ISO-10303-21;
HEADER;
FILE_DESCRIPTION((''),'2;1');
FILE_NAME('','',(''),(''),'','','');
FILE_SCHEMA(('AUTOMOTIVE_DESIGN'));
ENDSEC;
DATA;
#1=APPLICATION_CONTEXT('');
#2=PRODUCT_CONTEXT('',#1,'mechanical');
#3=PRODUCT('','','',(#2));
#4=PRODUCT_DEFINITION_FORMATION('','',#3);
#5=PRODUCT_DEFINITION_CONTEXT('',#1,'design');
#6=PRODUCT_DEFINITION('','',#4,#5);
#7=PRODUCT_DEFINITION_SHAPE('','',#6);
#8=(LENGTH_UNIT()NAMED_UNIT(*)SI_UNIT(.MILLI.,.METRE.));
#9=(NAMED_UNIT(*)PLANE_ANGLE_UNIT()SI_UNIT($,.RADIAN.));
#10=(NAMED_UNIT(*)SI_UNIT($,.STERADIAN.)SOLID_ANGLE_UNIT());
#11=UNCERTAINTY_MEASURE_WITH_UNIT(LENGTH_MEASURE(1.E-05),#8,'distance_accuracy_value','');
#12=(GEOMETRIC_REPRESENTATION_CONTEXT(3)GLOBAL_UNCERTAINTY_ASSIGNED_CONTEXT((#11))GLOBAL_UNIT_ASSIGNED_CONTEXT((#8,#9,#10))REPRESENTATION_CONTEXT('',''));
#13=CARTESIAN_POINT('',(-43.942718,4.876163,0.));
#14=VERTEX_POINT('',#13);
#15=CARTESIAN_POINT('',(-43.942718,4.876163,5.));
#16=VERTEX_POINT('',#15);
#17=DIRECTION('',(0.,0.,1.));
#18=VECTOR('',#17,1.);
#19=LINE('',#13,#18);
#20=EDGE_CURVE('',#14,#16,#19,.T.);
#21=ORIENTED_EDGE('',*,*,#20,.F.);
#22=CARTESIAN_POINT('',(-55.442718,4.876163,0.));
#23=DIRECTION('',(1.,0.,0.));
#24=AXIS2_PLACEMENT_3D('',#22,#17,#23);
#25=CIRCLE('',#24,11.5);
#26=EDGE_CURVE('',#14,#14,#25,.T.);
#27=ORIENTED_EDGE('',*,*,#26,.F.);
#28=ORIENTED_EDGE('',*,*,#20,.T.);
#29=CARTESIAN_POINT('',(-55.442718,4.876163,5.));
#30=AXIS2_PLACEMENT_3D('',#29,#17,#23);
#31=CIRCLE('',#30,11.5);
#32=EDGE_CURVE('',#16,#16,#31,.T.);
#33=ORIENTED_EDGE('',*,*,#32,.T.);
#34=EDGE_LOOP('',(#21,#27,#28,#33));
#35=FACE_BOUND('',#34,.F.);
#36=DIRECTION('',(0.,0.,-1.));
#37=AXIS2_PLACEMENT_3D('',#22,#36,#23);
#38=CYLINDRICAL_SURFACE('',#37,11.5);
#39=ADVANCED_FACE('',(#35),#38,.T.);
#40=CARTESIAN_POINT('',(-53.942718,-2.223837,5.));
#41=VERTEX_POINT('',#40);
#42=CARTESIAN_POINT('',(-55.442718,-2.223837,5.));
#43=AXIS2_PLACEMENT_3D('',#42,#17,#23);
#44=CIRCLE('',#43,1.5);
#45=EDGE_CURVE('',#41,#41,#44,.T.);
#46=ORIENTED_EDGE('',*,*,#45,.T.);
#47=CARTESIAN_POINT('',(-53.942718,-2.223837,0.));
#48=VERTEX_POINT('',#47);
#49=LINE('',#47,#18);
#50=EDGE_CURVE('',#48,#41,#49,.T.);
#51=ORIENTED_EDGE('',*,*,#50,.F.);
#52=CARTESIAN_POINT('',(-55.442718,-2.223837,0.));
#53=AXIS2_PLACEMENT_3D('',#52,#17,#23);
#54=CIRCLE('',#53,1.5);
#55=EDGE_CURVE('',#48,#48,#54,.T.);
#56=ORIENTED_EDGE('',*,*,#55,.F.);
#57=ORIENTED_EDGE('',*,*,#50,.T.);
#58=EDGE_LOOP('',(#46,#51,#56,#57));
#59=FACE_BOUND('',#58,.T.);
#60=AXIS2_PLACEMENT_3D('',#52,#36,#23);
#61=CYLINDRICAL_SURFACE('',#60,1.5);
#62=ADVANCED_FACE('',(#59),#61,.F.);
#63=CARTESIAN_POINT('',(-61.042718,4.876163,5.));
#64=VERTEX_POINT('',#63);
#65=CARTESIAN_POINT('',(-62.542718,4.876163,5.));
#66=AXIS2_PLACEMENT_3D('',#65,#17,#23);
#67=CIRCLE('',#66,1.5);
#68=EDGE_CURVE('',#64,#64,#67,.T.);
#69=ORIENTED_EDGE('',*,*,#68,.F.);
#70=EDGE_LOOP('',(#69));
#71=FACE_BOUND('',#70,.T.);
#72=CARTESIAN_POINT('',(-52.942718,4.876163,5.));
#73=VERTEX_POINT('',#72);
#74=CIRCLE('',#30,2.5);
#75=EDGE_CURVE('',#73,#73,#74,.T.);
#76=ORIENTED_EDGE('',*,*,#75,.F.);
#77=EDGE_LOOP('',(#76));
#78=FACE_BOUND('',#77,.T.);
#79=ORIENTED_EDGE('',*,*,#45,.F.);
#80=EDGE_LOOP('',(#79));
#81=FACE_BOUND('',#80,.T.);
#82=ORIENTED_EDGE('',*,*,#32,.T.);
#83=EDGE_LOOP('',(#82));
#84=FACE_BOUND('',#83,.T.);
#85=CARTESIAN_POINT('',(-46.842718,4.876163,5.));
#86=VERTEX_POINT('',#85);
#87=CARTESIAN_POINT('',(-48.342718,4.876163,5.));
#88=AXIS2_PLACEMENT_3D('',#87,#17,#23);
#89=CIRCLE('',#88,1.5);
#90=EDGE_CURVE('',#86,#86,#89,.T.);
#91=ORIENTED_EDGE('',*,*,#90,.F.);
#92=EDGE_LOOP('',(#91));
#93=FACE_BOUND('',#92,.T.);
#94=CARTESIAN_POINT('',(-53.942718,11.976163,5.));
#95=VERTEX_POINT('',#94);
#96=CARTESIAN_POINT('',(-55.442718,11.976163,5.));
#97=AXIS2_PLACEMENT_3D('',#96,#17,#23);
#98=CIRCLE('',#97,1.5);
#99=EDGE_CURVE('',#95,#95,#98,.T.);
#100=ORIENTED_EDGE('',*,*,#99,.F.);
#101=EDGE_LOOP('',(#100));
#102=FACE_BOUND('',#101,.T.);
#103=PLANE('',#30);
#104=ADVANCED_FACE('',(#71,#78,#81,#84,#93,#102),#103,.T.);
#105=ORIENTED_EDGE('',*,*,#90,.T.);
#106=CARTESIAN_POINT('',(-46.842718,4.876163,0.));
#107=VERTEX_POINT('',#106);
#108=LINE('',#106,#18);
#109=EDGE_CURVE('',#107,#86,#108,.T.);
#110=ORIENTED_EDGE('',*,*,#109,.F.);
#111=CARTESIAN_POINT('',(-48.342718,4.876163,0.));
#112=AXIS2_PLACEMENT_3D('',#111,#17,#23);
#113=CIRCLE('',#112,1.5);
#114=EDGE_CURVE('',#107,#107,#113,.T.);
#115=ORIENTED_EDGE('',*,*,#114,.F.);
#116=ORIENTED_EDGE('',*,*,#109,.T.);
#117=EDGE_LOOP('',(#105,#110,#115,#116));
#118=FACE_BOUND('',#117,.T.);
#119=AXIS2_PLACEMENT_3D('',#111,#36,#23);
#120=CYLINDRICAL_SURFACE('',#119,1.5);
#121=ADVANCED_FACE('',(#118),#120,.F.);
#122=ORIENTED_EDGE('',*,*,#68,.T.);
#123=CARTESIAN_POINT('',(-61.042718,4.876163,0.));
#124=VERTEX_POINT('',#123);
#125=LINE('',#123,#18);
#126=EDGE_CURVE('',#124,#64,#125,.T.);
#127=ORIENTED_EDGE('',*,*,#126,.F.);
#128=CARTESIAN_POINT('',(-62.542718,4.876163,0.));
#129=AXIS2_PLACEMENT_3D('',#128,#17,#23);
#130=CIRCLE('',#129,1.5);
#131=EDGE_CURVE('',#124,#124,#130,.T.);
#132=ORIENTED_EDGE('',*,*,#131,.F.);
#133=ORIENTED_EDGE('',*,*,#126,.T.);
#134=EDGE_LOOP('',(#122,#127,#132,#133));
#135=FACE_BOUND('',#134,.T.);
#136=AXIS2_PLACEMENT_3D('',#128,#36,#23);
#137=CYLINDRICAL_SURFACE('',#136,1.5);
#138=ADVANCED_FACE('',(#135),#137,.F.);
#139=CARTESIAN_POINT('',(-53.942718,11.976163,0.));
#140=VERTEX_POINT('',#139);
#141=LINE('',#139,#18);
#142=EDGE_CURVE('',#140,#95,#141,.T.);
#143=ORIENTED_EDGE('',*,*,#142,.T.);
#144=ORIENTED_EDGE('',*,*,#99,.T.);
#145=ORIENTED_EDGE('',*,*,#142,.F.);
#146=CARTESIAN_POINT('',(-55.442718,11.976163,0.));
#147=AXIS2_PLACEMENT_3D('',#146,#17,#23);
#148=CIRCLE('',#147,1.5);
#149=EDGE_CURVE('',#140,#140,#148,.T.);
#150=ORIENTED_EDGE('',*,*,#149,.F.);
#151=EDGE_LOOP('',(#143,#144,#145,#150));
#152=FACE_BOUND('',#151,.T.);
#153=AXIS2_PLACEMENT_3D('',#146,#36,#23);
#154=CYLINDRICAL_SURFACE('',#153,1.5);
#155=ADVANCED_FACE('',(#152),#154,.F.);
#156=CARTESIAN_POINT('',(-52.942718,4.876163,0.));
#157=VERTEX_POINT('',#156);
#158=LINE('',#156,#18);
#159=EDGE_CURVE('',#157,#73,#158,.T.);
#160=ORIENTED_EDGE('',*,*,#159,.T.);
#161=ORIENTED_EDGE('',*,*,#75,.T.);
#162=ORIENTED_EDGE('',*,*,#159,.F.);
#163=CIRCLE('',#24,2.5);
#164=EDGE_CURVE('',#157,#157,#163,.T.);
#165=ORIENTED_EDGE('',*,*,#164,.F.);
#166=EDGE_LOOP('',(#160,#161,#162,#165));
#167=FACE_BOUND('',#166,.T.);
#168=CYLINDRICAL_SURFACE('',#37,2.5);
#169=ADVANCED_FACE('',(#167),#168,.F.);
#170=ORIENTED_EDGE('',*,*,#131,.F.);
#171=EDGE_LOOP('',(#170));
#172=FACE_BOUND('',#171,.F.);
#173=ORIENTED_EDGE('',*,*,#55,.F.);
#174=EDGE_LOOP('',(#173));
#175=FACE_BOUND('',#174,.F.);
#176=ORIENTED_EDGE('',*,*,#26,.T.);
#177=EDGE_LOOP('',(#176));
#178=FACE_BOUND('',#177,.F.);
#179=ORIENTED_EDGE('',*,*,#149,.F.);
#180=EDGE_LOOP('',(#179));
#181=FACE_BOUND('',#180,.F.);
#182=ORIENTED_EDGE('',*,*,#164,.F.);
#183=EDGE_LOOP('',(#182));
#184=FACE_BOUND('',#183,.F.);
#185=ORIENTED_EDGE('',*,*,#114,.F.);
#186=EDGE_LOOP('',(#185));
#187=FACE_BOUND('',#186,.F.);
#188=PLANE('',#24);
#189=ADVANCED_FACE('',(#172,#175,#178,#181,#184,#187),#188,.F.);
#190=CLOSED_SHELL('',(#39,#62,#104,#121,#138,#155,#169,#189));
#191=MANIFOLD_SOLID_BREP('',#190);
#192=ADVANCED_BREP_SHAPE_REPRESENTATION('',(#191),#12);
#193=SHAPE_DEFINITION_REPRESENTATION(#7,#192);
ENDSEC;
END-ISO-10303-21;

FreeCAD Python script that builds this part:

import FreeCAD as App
import Part
import Sketcher
from FreeCAD import Vector

doc = App.newDocument("Part")
body = doc.addObject("PartDesign::Body", "Body")

# Sketch on XY plane
sketch1 = body.newObject("Sketcher::SketchObject", "Sketch")
sketch1.AttachmentSupport = (doc.getObject("XY_Plane"), [""])
sketch1.MapMode = "FlatFace"
sketch1.addGeometry(Part.Circle(Vector(-55.4, 4.9, 0), Vector(0, 0, 1), 11.5), False)
sketch1.addGeometry(Part.Circle(Vector(-55.4, -2.2, 0), Vector(0, 0, 1), 1.5), False)
sketch1.addGeometry(Part.Circle(Vector(-62.5, 4.9, 0), Vector(0, 0, 1), 1.5), False)
sketch1.addGeometry(Part.Circle(Vector(-55.4, 4.9, 0), Vector(0, 0, 1), 2.5), False)
sketch1.addGeometry(Part.Circle(Vector(-48.3, 4.9, 0), Vector(0, 0, 1), 1.5), False)
sketch1.addGeometry(Part.Circle(Vector(-55.4, 12, 0), Vector(0, 0, 1), 1.5), False)
sketch1.addConstraint(Sketcher.Constraint("Coincident", 3, 3, 0, 3))
sketch1.addConstraint(Sketcher.Constraint("Equal", 1, 2))
sketch1.addConstraint(Sketcher.Constraint("Equal", 2, 4))
sketch1.addConstraint(Sketcher.Constraint("Equal", 4, 5))
sketch1.addConstraint(Sketcher.Constraint("Horizontal", 0, 3, 2, 3))
sketch1.addConstraint(Sketcher.Constraint("Horizontal", 3, 3, 4, 3))
sketch1.addConstraint(Sketcher.Constraint("Vertical", 0, 3, 1, 3))
sketch1.addConstraint(Sketcher.Constraint("Vertical", 3, 3, 5, 3))
sketch1.addConstraint(Sketcher.Constraint("Diameter", 0, 23.0))
sketch1.addConstraint(Sketcher.Constraint("Diameter", 1, 3.0))
sketch1.addConstraint(Sketcher.Constraint("Diameter", 3, 5.0))
sketch1.addConstraint(Sketcher.Constraint("DistanceY", 1, 3, 0, 3, 7.1))
sketch1.addConstraint(Sketcher.Constraint("DistanceX", 2, 3, 0, 3, 7.1))
sketch1.addConstraint(Sketcher.Constraint("DistanceX", 0, 3, 4, 3, 7.1))
sketch1.addConstraint(Sketcher.Constraint("DistanceY", 0, 3, 5, 3, 7.1))
sketch1.addConstraint(Sketcher.Constraint("DistanceX", 0, 3, -1, 1, 55.442718))
sketch1.addConstraint(Sketcher.Constraint("DistanceY", -1, 1, 0, 3, 4.876163))
pad1 = body.newObject("PartDesign::Pad", "Pad")
pad1.Profile = sketch1
pad1.Length = 5

doc.recompute()
